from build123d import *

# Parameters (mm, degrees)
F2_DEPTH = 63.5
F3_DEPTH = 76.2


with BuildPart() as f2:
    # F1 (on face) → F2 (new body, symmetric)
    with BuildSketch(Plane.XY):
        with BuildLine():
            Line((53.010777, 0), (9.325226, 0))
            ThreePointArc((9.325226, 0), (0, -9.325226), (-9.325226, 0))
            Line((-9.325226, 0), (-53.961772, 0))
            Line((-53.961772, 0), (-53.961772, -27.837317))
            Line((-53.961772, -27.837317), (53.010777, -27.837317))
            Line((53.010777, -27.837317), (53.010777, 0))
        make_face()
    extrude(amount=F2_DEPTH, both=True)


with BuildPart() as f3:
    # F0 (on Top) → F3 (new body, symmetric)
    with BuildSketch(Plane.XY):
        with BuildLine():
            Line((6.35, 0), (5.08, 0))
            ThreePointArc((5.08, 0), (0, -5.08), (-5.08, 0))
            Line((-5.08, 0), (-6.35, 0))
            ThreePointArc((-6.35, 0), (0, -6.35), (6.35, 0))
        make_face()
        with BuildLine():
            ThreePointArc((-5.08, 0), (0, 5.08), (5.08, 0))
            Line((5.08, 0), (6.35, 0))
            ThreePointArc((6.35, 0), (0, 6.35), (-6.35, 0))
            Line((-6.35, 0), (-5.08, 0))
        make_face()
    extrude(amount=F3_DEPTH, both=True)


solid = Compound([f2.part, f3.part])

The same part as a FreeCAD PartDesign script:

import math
import FreeCAD as App
import Part
import Sketcher
Q = App.Units.Quantity

doc = App.newDocument("Part")
body = doc.addObject("PartDesign::Body", "Body")

sketch1 = body.newObject("Sketcher::SketchObject", "Sketch")
sketch1.AttachmentSupport = (doc.getObject("XY_Plane"), [""])
sketch1.MapMode = "FlatFace"
sketch1.addGeometry([
    Part.LineSegment(App.Vector(53, 0, 0), App.Vector(9, 0, 0)),
    Part.ArcOfCircle(Part.Circle(App.Vector(0, 0, 0), App.Vector(0, 0, 1), 9), math.radians(180), math.radians(360)),
    Part.LineSegment(App.Vector(-9, 0, 0), App.Vector(-54, 0, 0)),
    Part.LineSegment(App.Vector(-54, 0, 0), App.Vector(-54, -28, 0)),
    Part.LineSegment(App.Vector(-54, -28, 0), App.Vector(53, -28, 0)),
    Part.LineSegment(App.Vector(53, -28, 0), App.Vector(53, 0, 0)),
], False)
sketch1.addConstraint([
    Sketcher.Constraint("Coincident", 0, 2, 1, 2),
    Sketcher.Constraint("Coincident", 1, 1, 2, 1),
    Sketcher.Constraint("Coincident", 2, 2, 3, 1),
    Sketcher.Constraint("Coincident", 3, 2, 4, 1),
    Sketcher.Constraint("Coincident", 4, 2, 5, 1),
    Sketcher.Constraint("Coincident", 5, 2, 0, 1),
    Sketcher.Constraint("Horizontal", 0),
    Sketcher.Constraint("Horizontal", 2),
    Sketcher.Constraint("Vertical", 3),
    Sketcher.Constraint("Horizontal", 4),
    Sketcher.Constraint("Vertical", 5),
    Sketcher.Constraint("Coincident", 1, 3, -1, 1),
    Sketcher.Constraint("PointOnObject", 0, 2, -1),
    Sketcher.Constraint("PointOnObject", 1, 1, -1),
    Sketcher.Constraint("Radius", 1, 9.325226),
    Sketcher.Constraint("DistanceX", 0, 2, 0, 1, 43.685551),
    Sketcher.Constraint("DistanceX", 4, 1, 4, 2, 106.972549),
    Sketcher.Constraint("DistanceY", 3, 2, 3, 1, 27.837317),
])
pad1 = body.newObject("PartDesign::Pad", "Pad")
pad1.Profile = sketch1
pad1.Length = Q("5 in")
pad1.Midplane = True
body2 = doc.addObject("PartDesign::Body", "Body001")

sketch2 = body2.newObject("Sketcher::SketchObject", "Sketch001")
sketch2.AttachmentSupport = (doc.getObject("XY_Plane001"), [""])
sketch2.MapMode = "FlatFace"
sketch2.addGeometry([
    Part.Circle(App.Vector(0, 0, 0), App.Vector(0, 0, 1), 6),
    Part.Circle(App.Vector(0, 0, 0), App.Vector(0, 0, 1), 5),
], False)
sketch2.addConstraint([
    Sketcher.Constraint("Coincident", 0, 3, -1, 1),
    Sketcher.Constraint("Coincident", 1, 3, -1, 1),
    Sketcher.Constraint("Diameter", 0, Q("0.5 in")),
    Sketcher.Constraint("Diameter", 1, Q("0.4 in")),
])
pad2 = body2.newObject("PartDesign::Pad", "Pad001")
pad2.Profile = sketch2
pad2.Length = Q("6 in")
pad2.Midplane = True

doc.recompute()
